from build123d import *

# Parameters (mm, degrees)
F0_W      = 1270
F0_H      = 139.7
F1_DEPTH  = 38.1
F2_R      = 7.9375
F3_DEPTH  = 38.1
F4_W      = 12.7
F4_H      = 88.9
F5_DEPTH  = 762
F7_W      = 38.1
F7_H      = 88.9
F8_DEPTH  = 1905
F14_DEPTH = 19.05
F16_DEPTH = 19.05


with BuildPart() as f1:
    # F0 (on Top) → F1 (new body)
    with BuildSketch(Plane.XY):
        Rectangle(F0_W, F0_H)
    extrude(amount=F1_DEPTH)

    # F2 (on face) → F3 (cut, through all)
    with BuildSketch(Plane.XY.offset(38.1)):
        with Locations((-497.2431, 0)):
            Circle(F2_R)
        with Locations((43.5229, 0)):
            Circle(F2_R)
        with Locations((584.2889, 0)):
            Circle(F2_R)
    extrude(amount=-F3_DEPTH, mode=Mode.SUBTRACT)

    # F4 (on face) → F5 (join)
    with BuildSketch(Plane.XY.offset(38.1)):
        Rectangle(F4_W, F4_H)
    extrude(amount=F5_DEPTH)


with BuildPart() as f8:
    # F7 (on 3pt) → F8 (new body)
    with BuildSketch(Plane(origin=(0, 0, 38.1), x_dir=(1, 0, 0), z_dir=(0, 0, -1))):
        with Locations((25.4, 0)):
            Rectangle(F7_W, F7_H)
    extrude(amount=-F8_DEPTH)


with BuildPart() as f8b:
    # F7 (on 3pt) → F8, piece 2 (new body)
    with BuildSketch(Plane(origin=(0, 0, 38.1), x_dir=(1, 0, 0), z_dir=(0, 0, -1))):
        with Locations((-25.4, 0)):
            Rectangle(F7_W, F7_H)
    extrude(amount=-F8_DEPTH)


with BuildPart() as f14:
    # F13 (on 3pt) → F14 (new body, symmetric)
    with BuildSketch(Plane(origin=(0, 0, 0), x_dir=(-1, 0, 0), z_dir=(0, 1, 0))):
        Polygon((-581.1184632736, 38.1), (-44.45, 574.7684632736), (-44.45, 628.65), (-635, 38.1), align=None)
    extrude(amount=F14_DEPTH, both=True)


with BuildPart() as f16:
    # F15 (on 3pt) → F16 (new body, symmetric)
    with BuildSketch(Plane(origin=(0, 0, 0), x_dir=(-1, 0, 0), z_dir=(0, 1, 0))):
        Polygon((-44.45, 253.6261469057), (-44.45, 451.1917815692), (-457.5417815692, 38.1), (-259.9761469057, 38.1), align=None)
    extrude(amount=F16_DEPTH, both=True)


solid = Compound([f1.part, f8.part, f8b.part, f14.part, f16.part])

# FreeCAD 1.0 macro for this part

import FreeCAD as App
import Part
import Sketcher

V = App.Vector
Q = App.Units.Quantity


def add_polygon(sketch, points):
    """Adds a closed chain of lines whose ends are joined by coincident constraints."""
    first, n = sketch.GeometryCount, len(points)
    for a, b in zip(points, points[1:] + points[:1]):
        sketch.addGeometry(Part.LineSegment(App.Vector(*a, 0), App.Vector(*b, 0)), False)
    for i in range(n):
        sketch.addConstraint(Sketcher.Constraint("Coincident", first + i, 2, first + (i + 1) % n, 1))

doc = App.newDocument("Part")
params = doc.addObject("Spreadsheet::Sheet", "Params")
for row, (alias, value) in enumerate([
    ("sketch1_width", "50 in"),
    ("sketch1_height", "5.5 in"),
    ("pad1_length", "1.5 in"),
    ("sketch2_diameter", "0.625 in"),
    ("sketch3_width", "0.5 in"),
    ("sketch3_height", "3.5 in"),
    ("pad2_length", "30 in"),
    ("sketch4_width", "1.5 in"),
    ("sketch4_height", "3.5 in"),
    ("pad3_length", "75 in"),
    ("sketch5_width", "1.5 in"),
    ("sketch5_height", "3.5 in"),
    ("pad4_length", "75 in"),
    ("pad5_length", "1.5 in"),
    ("sketch7_length", "23 in"),
    ("sketch7_length2", "12 in"),
    ("pad6_length", "1.5 in"),
], start=1):
    params.set(f"A{row}", alias)
    params.set(f"B{row}", "=" + value)
    params.setAlias(f"B{row}", alias)

body = doc.addObject("PartDesign::Body", "Body")

# Sketch on XY plane
sketch1 = body.newObject("Sketcher::SketchObject", "Sketch")
sketch1.AttachmentSupport = (doc.getObject("XY_Plane"), [""])
sketch1.MapMode = "FlatFace"
add_polygon(sketch1, [(-635, 70), (-635, -70), (635, -70), (635, 70)])  # lines 0-3
sketch1.addConstraint([
    Sketcher.Constraint("Vertical", 0),
    Sketcher.Constraint("Horizontal", 1),
    Sketcher.Constraint("Vertical", 2),
    Sketcher.Constraint("Horizontal", 3),
    Sketcher.Constraint("Symmetric", 0, 2, 2, 2, -1, 1),
    Sketcher.Constraint("DistanceX", 1, 1, 1, 2, Q("50 in")),
    Sketcher.Constraint("DistanceY", 0, 2, 0, 1, Q("5.5 in")),
])
sketch1.setExpression("Constraints[9]", "Params.sketch1_width")
sketch1.setExpression("Constraints[10]", "Params.sketch1_height")
pad1 = body.newObject("PartDesign::Pad", "Pad")
pad1.Profile = sketch1
pad1.setExpression("Length", "Params.pad1_length")

# Sketch on XY plane
sketch2 = body.newObject("Sketcher::SketchObject", "Sketch001")
sketch2.AttachmentSupport = (doc.getObject("XY_Plane"), [""])
sketch2.MapMode = "FlatFace"
sketch2.AttachmentOffset = App.Placement(V(0, 0, 1.5 * 25.4), App.Rotation())
sketch2.addGeometry([
    Part.Circle(V(-497, 0, 0), V(0, 0, 1), 8),
    Part.Circle(V(44, 0, 0), V(0, 0, 1), 8),
    Part.Circle(V(584, 0, 0), V(0, 0, 1), 8),
], False)
sketch2.addConstraint([
    Sketcher.Constraint("Equal", 0, 1),
    Sketcher.Constraint("Equal", 1, 2),
    Sketcher.Constraint("PointOnObject", 0, 3, -1),
    Sketcher.Constraint("PointOnObject", 1, 3, -1),
    Sketcher.Constraint("PointOnObject", 2, 3, -1),
    Sketcher.Constraint("Diameter", 0, Q("0.625 in")),
    Sketcher.Constraint("DistanceX", 0, 3, 1, 3, Q("21.29 in")),
    Sketcher.Constraint("DistanceX", 1, 3, 2, 3, Q("21.29 in")),
    Sketcher.Constraint("DistanceX", 0, 3, -1, 1, Q("19.5765 in")),
])
sketch2.setExpression("Constraints[5]", "Params.sketch2_diameter")
pocket1 = body.newObject("PartDesign::Pocket", "Pocket")
pocket1.Profile = sketch2
pocket1.Type = "ThroughAll"

# Sketch on XY plane
sketch3 = body.newObject("Sketcher::SketchObject", "Sketch002")
sketch3.AttachmentSupport = (doc.getObject("XY_Plane"), [""])
sketch3.MapMode = "FlatFace"
sketch3.AttachmentOffset = App.Placement(V(0, 0, 1.5 * 25.4), App.Rotation())
add_polygon(sketch3, [(-6, 44), (-6, -44), (6, -44), (6, 44)])  # lines 0-3
sketch3.addConstraint([
    Sketcher.Constraint("Vertical", 0),
    Sketcher.Constraint("Horizontal", 1),
    Sketcher.Constraint("Vertical", 2),
    Sketcher.Constraint("Horizontal", 3),
    Sketcher.Constraint("Symmetric", 0, 2, 2, 2, -1, 1),
    Sketcher.Constraint("DistanceX", 1, 1, 1, 2, Q("0.5 in")),
    Sketcher.Constraint("DistanceY", 0, 2, 0, 1, Q("3.5 in")),
])
sketch3.setExpression("Constraints[9]", "Params.sketch3_width")
sketch3.setExpression("Constraints[10]", "Params.sketch3_height")
pad2 = body.newObject("PartDesign::Pad", "Pad001")
pad2.Profile = sketch3
pad2.setExpression("Length", "Params.pad2_length")
body2 = doc.addObject("PartDesign::Body", "Body001")

# Sketch on XY plane
sketch4 = body2.newObject("Sketcher::SketchObject", "Sketch003")
sketch4.AttachmentSupport = (doc.getObject("XY_Plane001"), [""])
sketch4.MapMode = "FlatFace"
sketch4.AttachmentOffset = App.Placement(V(0, 0, 1.5 * 25.4), App.Rotation())
add_polygon(sketch4, [(6, -44), (6, 44), (44, 44), (44, -44)])  # lines 0-3
sketch4.addConstraint([
    Sketcher.Constraint("Vertical", 0),
    Sketcher.Constraint("Horizontal", 1),
    Sketcher.Constraint("Vertical", 2),
    Sketcher.Constraint("Horizontal", 3),
    Sketcher.Constraint("DistanceX", 1, 1, 1, 2, Q("1.5 in")),
    Sketcher.Constraint("DistanceY", 0, 1, 0, 2, Q("3.5 in")),
    Sketcher.Constraint("DistanceX", -1, 1, 0, 2, Q("0.25 in")),
    Sketcher.Constraint("DistanceY", -1, 1, 0, 2, Q("1.75 in")),
])
sketch4.setExpression("Constraints[8]", "Params.sketch4_width")
sketch4.setExpression("Constraints[9]", "Params.sketch4_height")
pad3 = body2.newObject("PartDesign::Pad", "Pad002")
pad3.Profile = sketch4
pad3.setExpression("Length", "Params.pad3_length")
body3 = doc.addObject("PartDesign::Body", "Body002")

# Sketch on XY plane
sketch5 = body3.newObject("Sketcher::SketchObject", "Sketch004")
sketch5.AttachmentSupport = (doc.getObject("XY_Plane002"), [""])
sketch5.MapMode = "FlatFace"
sketch5.AttachmentOffset = App.Placement(V(0, 0, 1.5 * 25.4), App.Rotation())
add_polygon(sketch5, [(-44, -44), (-44, 44), (-6, 44), (-6, -44)])  # lines 0-3
sketch5.addConstraint([
    Sketcher.Constraint("Vertical", 0),
    Sketcher.Constraint("Horizontal", 1),
    Sketcher.Constraint("Vertical", 2),
    Sketcher.Constraint("Horizontal", 3),
    Sketcher.Constraint("DistanceX", 1, 1, 1, 2, Q("1.5 in")),
    Sketcher.Constraint("DistanceY", 0, 1, 0, 2, Q("3.5 in")),
    Sketcher.Constraint("DistanceX", 0, 2, -1, 1, Q("1.75 in")),
    Sketcher.Constraint("DistanceY", -1, 1, 0, 2, Q("1.75 in")),
])
sketch5.setExpression("Constraints[8]", "Params.sketch5_width")
sketch5.setExpression("Constraints[9]", "Params.sketch5_height")
pad4 = body3.newObject("PartDesign::Pad", "Pad003")
pad4.Profile = sketch5
pad4.setExpression("Length", "Params.pad4_length")
body4 = doc.addObject("PartDesign::Body", "Body003")

# Sketch on XZ plane
sketch6 = body4.newObject("Sketcher::SketchObject", "Sketch005")
sketch6.AttachmentSupport = (doc.getObject("XZ_Plane003"), [""])
sketch6.MapMode = "FlatFace"
add_polygon(sketch6, [(581, 38), (44, 575), (44, 629), (635, 38)])  # lines 0-3
sketch6.addConstraint([
    Sketcher.Constraint("Vertical", 1),
    Sketcher.Constraint("Horizontal", 3),
    Sketcher.Constraint("Parallel", 0, 2),
    Sketcher.Constraint("Equal", 3, 1),
    Sketcher.Constraint("DistanceX", -1, 1, 2, 2, Q("25 in")),
    Sketcher.Constraint("DistanceY", -1, 1, 2, 2, Q("1.5 in")),
    Sketcher.Constraint("DistanceX", -1, 1, 0, 2, Q("1.75 in")),
    Sketcher.Constraint("Distance", 0, Q("758.963819 mm")),
])
pad5 = body4.newObject("PartDesign::Pad", "Pad004")
pad5.Profile = sketch6
pad5.setExpression("Length", "Params.pad5_length")
pad5.Midplane = True
body5 = doc.addObject("PartDesign::Body", "Body004")

# Sketch on XZ plane
sketch7 = body5.newObject("Sketcher::SketchObject", "Sketch006")
sketch7.AttachmentSupport = (doc.getObject("XZ_Plane004"), [""])
sketch7.MapMode = "FlatFace"
add_polygon(sketch7, [(44, 254), (44, 451), (458, 38), (260, 38)])  # lines 0-3
sketch7.addConstraint([
    Sketcher.Constraint("Vertical", 0),
    Sketcher.Constraint("Horizontal", 2),
    Sketcher.Constraint("Parallel", 1, 3),
    Sketcher.Constraint("Equal", 2, 0),
    Sketcher.Constraint("Distance", 1, Q("23 in")),
    Sketcher.Constraint("Distance", 3, Q("12 in")),
    Sketcher.Constraint("DistanceY", -1, 1, 1, 2, Q("1.5 in")),
    Sketcher.Constraint("DistanceX", -1, 1, 0, 2, Q("1.75 in")),
])
sketch7.setExpression("Constraints[8]", "Params.sketch7_length")
sketch7.setExpression("Constraints[9]", "Params.sketch7_length2")
pad6 = body5.newObject("PartDesign::Pad", "Pad005")
pad6.Profile = sketch7
pad6.setExpression("Length", "Params.pad6_length")
pad6.Midplane = True

doc.recompute()
